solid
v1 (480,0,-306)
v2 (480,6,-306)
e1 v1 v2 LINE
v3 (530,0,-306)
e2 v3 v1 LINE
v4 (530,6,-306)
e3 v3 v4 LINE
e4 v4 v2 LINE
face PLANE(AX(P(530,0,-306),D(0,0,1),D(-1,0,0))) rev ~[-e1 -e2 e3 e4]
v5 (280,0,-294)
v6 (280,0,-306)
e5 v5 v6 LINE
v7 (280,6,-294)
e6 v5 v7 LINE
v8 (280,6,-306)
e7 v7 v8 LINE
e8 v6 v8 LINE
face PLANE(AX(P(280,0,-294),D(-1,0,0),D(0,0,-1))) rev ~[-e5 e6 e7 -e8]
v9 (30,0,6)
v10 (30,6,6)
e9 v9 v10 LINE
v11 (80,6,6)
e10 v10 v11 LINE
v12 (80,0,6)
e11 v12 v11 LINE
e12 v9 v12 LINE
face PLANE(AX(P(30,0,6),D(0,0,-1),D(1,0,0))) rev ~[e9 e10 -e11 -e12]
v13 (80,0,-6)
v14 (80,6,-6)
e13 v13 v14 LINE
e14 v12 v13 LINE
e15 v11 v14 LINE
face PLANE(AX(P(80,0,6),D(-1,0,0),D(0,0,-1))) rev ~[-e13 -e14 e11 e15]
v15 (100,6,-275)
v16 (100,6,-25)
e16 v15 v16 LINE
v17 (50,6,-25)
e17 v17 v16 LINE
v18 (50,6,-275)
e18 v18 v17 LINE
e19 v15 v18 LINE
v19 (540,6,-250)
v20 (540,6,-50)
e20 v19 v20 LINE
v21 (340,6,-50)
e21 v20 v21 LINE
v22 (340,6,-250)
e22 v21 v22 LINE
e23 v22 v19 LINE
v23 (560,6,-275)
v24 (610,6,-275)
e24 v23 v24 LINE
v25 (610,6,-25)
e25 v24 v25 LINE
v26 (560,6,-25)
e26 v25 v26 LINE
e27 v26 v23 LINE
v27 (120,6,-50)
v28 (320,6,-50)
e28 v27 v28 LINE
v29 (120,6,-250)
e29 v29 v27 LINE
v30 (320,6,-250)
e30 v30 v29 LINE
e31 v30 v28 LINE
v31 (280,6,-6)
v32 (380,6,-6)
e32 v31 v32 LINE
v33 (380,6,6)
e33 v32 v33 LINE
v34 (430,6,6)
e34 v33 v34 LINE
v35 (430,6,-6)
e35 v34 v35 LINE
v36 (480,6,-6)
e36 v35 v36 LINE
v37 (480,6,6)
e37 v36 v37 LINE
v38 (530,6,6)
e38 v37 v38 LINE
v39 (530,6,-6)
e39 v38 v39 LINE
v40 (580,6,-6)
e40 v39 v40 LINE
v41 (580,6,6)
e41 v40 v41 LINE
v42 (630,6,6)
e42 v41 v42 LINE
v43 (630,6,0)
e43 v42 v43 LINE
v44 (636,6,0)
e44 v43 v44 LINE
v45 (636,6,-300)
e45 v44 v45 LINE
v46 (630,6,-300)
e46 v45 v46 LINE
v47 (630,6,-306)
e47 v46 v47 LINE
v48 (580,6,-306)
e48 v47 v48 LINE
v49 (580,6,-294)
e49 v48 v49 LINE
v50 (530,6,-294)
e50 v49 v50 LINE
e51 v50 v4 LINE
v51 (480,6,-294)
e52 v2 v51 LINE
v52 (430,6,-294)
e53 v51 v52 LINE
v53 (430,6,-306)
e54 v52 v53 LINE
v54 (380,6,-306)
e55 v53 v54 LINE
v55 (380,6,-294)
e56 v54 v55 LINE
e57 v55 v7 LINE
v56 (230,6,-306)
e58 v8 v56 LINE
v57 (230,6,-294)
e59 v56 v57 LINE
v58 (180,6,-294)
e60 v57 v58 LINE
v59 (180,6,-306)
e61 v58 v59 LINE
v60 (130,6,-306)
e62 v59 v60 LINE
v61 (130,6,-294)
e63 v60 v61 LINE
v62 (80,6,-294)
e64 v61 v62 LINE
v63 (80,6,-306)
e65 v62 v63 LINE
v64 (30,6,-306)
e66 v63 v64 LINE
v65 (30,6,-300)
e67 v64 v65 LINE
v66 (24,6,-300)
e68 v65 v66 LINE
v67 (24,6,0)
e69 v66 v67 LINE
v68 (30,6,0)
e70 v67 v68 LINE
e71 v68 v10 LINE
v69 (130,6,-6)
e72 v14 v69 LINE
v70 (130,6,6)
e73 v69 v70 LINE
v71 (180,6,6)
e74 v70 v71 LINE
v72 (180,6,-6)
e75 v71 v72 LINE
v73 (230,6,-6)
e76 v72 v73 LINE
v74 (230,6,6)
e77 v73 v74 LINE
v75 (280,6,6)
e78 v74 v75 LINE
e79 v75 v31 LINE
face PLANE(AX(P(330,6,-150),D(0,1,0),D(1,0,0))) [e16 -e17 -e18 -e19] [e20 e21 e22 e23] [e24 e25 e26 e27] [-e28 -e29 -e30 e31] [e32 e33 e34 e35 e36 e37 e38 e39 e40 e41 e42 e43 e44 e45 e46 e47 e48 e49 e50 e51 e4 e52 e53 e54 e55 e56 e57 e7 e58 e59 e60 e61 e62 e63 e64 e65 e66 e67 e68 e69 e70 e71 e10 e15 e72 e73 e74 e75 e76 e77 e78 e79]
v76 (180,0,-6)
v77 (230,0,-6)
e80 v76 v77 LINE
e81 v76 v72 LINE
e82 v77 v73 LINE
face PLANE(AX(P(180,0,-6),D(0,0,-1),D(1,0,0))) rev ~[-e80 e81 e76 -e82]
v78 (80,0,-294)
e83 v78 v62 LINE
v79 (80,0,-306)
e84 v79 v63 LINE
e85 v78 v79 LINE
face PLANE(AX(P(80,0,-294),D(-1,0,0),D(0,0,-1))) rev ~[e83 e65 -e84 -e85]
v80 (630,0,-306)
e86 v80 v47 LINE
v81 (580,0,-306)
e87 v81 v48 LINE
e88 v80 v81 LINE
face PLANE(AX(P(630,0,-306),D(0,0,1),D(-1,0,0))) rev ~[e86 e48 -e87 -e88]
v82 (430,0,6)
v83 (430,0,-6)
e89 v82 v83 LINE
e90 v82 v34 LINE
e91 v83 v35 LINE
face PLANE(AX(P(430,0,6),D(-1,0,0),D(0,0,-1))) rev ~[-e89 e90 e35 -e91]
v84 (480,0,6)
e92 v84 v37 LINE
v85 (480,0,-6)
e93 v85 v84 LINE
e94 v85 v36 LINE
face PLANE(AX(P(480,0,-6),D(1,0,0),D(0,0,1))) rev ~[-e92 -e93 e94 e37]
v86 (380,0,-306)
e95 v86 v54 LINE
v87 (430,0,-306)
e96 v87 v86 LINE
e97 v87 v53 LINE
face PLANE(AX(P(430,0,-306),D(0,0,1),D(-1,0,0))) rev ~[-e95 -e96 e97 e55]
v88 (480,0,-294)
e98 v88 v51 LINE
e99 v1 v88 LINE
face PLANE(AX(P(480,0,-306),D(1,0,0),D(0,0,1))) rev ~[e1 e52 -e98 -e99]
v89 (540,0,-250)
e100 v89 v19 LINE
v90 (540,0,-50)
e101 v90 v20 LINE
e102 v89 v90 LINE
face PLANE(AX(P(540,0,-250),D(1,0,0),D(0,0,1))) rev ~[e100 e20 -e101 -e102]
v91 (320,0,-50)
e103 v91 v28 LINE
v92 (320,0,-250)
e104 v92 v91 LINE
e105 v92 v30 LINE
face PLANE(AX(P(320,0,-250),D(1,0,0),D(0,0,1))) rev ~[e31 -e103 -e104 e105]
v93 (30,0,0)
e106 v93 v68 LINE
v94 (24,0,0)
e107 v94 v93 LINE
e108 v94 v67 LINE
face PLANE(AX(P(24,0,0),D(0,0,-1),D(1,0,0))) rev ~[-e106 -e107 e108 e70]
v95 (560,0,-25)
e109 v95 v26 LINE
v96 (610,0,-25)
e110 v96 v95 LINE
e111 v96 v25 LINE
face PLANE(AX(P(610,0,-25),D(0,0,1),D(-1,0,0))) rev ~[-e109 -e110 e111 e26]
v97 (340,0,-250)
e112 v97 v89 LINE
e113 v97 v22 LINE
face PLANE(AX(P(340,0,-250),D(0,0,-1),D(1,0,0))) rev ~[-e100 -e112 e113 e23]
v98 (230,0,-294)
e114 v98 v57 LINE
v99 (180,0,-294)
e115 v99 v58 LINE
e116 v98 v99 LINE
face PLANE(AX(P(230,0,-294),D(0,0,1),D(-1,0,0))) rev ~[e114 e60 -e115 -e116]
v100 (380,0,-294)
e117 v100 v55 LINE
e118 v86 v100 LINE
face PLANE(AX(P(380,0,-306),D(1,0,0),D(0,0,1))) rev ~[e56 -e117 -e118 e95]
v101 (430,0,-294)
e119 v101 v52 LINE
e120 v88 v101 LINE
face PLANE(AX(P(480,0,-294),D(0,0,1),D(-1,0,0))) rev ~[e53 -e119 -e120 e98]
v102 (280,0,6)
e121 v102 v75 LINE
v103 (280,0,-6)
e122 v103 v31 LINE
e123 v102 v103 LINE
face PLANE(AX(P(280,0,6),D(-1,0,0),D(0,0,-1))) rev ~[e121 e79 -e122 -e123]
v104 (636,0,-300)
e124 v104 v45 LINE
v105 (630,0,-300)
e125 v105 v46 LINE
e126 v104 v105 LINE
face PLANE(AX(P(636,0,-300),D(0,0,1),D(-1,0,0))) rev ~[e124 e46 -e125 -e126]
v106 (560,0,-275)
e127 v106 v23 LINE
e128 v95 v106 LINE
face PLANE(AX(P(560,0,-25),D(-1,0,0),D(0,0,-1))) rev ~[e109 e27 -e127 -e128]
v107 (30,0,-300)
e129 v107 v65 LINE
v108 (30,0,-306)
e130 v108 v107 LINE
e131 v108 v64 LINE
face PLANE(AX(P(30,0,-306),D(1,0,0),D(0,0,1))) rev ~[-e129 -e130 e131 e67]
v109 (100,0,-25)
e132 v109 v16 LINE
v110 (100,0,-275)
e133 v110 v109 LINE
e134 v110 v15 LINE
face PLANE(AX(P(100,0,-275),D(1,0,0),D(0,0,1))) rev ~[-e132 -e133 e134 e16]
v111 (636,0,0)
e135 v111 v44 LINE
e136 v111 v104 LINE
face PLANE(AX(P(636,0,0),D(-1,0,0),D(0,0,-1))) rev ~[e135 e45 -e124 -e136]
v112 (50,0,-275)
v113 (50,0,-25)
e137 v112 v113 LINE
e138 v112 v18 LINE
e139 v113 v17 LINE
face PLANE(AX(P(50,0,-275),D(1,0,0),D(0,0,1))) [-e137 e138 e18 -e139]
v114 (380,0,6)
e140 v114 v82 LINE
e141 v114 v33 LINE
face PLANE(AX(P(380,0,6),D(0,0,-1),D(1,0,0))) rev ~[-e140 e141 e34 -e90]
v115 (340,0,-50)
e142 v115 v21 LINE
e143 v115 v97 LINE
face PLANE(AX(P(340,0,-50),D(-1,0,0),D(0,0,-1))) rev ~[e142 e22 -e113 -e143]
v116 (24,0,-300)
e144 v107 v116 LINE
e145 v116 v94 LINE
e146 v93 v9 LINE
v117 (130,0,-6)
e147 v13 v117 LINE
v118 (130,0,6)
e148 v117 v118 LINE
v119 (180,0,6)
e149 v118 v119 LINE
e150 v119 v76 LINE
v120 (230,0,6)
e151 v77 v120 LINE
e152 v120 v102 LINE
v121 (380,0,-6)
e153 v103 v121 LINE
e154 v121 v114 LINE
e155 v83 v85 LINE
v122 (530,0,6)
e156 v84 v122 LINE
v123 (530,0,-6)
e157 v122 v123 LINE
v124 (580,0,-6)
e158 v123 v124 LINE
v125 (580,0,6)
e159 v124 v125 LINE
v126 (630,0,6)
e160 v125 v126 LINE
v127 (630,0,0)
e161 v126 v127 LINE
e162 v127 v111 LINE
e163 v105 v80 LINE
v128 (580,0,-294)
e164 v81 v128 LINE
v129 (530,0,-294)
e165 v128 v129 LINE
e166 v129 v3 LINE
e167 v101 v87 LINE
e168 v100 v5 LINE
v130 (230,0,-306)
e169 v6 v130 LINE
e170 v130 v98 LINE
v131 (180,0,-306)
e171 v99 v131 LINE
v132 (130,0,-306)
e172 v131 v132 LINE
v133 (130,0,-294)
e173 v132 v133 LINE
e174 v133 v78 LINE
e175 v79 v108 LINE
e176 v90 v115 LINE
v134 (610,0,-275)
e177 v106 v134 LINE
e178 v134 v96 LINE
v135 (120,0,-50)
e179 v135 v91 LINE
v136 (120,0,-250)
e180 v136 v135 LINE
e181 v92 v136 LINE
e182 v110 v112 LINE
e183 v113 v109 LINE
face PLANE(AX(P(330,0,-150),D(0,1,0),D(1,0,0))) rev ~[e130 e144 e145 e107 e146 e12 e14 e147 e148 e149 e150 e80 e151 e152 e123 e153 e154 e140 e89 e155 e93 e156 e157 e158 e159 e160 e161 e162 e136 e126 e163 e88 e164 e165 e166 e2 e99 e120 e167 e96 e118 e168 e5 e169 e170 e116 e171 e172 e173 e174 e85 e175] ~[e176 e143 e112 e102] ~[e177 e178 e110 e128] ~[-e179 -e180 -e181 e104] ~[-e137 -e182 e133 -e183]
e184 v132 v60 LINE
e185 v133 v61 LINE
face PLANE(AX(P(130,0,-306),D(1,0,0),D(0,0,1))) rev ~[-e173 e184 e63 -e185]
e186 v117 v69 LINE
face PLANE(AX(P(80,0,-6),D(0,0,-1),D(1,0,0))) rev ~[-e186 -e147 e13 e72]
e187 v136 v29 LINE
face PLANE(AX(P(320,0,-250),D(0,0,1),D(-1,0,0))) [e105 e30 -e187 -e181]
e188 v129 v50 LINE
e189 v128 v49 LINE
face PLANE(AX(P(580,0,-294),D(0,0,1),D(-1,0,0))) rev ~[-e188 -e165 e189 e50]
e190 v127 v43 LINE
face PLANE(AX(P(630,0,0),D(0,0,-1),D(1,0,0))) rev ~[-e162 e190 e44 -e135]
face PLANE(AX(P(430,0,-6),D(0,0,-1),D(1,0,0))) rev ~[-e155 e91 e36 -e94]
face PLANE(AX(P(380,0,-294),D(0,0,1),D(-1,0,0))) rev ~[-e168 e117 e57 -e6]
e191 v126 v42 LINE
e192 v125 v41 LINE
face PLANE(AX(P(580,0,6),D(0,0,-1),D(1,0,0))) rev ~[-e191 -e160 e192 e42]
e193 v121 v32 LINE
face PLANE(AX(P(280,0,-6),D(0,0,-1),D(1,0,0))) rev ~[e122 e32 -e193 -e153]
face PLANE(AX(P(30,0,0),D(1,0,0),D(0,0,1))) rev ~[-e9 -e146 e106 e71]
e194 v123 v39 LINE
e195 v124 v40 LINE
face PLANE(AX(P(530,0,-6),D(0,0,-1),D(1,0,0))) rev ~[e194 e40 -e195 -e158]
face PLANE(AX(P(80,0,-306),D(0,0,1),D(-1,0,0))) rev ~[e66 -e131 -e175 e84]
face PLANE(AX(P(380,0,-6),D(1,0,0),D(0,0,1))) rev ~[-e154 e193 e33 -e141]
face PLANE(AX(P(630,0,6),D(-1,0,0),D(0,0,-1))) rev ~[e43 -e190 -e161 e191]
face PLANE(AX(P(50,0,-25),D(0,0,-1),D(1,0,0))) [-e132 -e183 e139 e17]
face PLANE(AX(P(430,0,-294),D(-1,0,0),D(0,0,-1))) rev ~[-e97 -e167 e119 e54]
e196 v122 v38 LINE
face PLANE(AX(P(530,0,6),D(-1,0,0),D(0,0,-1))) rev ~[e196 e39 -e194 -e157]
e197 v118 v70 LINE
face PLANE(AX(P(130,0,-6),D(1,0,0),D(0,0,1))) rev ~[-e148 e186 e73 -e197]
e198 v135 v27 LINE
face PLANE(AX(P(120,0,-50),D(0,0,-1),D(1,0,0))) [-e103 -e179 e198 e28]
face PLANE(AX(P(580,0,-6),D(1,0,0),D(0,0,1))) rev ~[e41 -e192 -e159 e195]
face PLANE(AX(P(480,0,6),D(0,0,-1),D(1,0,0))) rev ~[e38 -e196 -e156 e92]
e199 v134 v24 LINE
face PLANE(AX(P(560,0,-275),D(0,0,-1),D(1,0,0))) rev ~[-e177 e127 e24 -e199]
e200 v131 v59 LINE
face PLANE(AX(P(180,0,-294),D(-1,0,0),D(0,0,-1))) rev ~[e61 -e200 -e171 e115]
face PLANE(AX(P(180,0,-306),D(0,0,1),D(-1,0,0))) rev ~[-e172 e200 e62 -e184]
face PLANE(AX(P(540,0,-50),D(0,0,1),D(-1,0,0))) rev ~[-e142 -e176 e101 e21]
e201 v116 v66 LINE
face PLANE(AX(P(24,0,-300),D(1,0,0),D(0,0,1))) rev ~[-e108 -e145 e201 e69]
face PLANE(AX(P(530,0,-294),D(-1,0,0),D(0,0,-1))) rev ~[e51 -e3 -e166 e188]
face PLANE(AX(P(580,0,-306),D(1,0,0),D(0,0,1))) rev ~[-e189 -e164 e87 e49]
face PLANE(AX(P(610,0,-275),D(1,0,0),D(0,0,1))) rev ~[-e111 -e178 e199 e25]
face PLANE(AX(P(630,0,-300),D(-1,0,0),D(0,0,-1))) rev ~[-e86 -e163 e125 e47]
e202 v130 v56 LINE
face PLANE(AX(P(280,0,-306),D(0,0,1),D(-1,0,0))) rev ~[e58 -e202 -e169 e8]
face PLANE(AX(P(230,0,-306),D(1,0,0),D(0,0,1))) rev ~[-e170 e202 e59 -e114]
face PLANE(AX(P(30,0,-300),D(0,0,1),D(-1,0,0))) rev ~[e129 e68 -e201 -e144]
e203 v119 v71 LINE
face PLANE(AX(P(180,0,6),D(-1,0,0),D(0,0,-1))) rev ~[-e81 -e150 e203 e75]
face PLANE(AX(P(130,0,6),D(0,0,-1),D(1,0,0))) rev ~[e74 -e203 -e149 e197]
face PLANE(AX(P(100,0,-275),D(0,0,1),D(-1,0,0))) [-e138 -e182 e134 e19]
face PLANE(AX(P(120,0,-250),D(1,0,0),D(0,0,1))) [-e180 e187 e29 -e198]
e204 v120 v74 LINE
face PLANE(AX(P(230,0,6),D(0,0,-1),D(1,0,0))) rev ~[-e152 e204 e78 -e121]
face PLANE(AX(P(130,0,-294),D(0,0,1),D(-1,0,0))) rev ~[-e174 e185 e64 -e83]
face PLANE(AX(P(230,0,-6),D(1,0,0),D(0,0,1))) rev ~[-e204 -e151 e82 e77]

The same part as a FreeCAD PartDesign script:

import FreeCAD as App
import Part
import Sketcher
Q = App.Units.Quantity


def add_polygon(sketch, points):
    """Adds a closed chain of lines whose ends are joined by coincident constraints."""
    first, n = sketch.GeometryCount, len(points)
    for a, b in zip(points, points[1:] + points[:1]):
        sketch.addGeometry(Part.LineSegment(App.Vector(*a, 0), App.Vector(*b, 0)), False)
    for i in range(n):
        sketch.addConstraint(Sketcher.Constraint("Coincident", first + i, 2, first + (i + 1) % n, 1))

doc = App.newDocument("Part")
params = doc.addObject("Spreadsheet::Sheet", "Params")
for row, (alias, value) in enumerate([
    ("sketch1_width", "6 mm"),
    ("sketch1_width2", "50 mm"),
    ("sketch1_width3", "100 mm"),
    ("sketch1_width4", "200 mm"),
    ("sketch1_height", "300 mm"),
    ("pad1_length", "6 mm"),
], start=1):
    params.set(f"A{row}", alias)
    params.set(f"B{row}", "=" + value)
    params.setAlias(f"B{row}", alias)

body = doc.addObject("PartDesign::Body", "Body")

# Sketch on XZ plane
sketch1 = body.newObject("Sketcher::SketchObject", "Sketch")
sketch1.AttachmentSupport = (doc.getObject("XZ_Plane"), [""])
sketch1.MapMode = "FlatFace"
add_polygon(sketch1, [(30, -300), (24, -300), (24, 0), (30, 0), (30, 6), (80, 6), (80, -6), (130, -6), (130, 6), (180, 6), (180, -6), (230, -6), (230, 6), (280, 6), (280, -6), (380, -6), (380, 6), (430, 6), (430, -6), (480, -6), (480, 6), (530, 6), (530, -6), (580, -6), (580, 6), (630, 6), (630, 0), (636, 0), (636, -300), (630, -300), (630, -306), (580, -306), (580, -294), (530, -294), (530, -306), (480, -306), (480, -294), (430, -294), (430, -306), (380, -306), (380, -294), (280, -294), (280, -306), (230, -306), (230, -294), (180, -294), (180, -306), (130, -306), (130, -294), (80, -294), (80, -306), (30, -306)])  # lines 0-51
add_polygon(sketch1, [(100, -275), (100, -25), (50, -25), (50, -275)])  # lines 52-55
add_polygon(sketch1, [(320, -250), (320, -50), (120, -50), (120, -250)])  # lines 56-59
add_polygon(sketch1, [(340, -50), (340, -250), (540, -250), (540, -50)])  # lines 60-63
add_polygon(sketch1, [(560, -25), (560, -275), (610, -275), (610, -25)])  # lines 64-67
sketch1.addConstraint([
    Sketcher.Constraint("Horizontal", 0),
    Sketcher.Constraint("Vertical", 1),
    Sketcher.Constraint("Horizontal", 2),
    Sketcher.Constraint("Vertical", 3),
    Sketcher.Constraint("Horizontal", 4),
    Sketcher.Constraint("Vertical", 5),
    Sketcher.Constraint("Horizontal", 6),
    Sketcher.Constraint("Vertical", 7),
    Sketcher.Constraint("Horizontal", 8),
    Sketcher.Constraint("Vertical", 9),
    Sketcher.Constraint("Horizontal", 10),
    Sketcher.Constraint("Vertical", 11),
    Sketcher.Constraint("Horizontal", 12),
    Sketcher.Constraint("Vertical", 13),
    Sketcher.Constraint("Horizontal", 14),
    Sketcher.Constraint("Vertical", 15),
    Sketcher.Constraint("Horizontal", 16),
    Sketcher.Constraint("Vertical", 17),
    Sketcher.Constraint("Horizontal", 18),
    Sketcher.Constraint("Vertical", 19),
    Sketcher.Constraint("Horizontal", 20),
    Sketcher.Constraint("Vertical", 21),
    Sketcher.Constraint("Horizontal", 22),
    Sketcher.Constraint("Vertical", 23),
    Sketcher.Constraint("Horizontal", 24),
    Sketcher.Constraint("Vertical", 25),
    Sketcher.Constraint("Horizontal", 26),
    Sketcher.Constraint("Vertical", 27),
    Sketcher.Constraint("Horizontal", 28),
    Sketcher.Constraint("Vertical", 29),
    Sketcher.Constraint("Horizontal", 30),
    Sketcher.Constraint("Vertical", 31),
    Sketcher.Constraint("Horizontal", 32),
    Sketcher.Constraint("Vertical", 33),
    Sketcher.Constraint("Horizontal", 34),
    Sketcher.Constraint("Vertical", 35),
    Sketcher.Constraint("Horizontal", 36),
    Sketcher.Constraint("Vertical", 37),
    Sketcher.Constraint("Horizontal", 38),
    Sketcher.Constraint("Vertical", 39),
    Sketcher.Constraint("Horizontal", 40),
    Sketcher.Constraint("Vertical", 41),
    Sketcher.Constraint("Horizontal", 42),
    Sketcher.Constraint("Vertical", 43),
    Sketcher.Constraint("Horizontal", 44),
    Sketcher.Constraint("Vertical", 45),
    Sketcher.Constraint("Horizontal", 46),
    Sketcher.Constraint("Vertical", 47),
    Sketcher.Constraint("Horizontal", 48),
    Sketcher.Constraint("Vertical", 49),
    Sketcher.Constraint("Horizontal", 50),
    Sketcher.Constraint("Vertical", 51),
    Sketcher.Constraint("Vertical", 52),
    Sketcher.Constraint("Horizontal", 53),
    Sketcher.Constraint("Vertical", 54),
    Sketcher.Constraint("Horizontal", 55),
    Sketcher.Constraint("Vertical", 56),
    Sketcher.Constraint("Horizontal", 57),
    Sketcher.Constraint("Vertical", 58),
    Sketcher.Constraint("Horizontal", 59),
    Sketcher.Constraint("Vertical", 60),
    Sketcher.Constraint("Horizontal", 61),
    Sketcher.Constraint("Vertical", 62),
    Sketcher.Constraint("Horizontal", 63),
    Sketcher.Constraint("Vertical", 64),
    Sketcher.Constraint("Horizontal", 65),
    Sketcher.Constraint("Vertical", 66),
    Sketcher.Constraint("Horizontal", 67),
    Sketcher.Constraint("PointOnObject", 1, 2, -1),
    Sketcher.Constraint("PointOnObject", 25, 2, -1),
    Sketcher.Constraint("Horizontal", 4, 2, 7, 2),
    Sketcher.Constraint("Horizontal", 6, 2, 9, 2),
    Sketcher.Constraint("Horizontal", 8, 2, 11, 2),
    Sketcher.Constraint("Horizontal", 10, 2, 13, 2),
    Sketcher.Constraint("Horizontal", 12, 2, 15, 2),
    Sketcher.Constraint("Horizontal", 14, 2, 17, 2),
    Sketcher.Constraint("Horizontal", 16, 2, 19, 2),
    Sketcher.Constraint("Horizontal", 18, 2, 21, 2),
    Sketcher.Constraint("Horizontal", 20, 2, 23, 2),
    Sketcher.Constraint("Horizontal", 0, 2, 27, 2),
    Sketcher.Constraint("Horizontal", 30, 2, 33, 2),
    Sketcher.Constraint("Horizontal", 32, 2, 35, 2),
    Sketcher.Constraint("Horizontal", 34, 2, 37, 2),
    Sketcher.Constraint("Horizontal", 36, 2, 39, 2),
    Sketcher.Constraint("Horizontal", 38, 2, 41, 2),
    Sketcher.Constraint("Horizontal", 40, 2, 43, 2),
    Sketcher.Constraint("Horizontal", 42, 2, 45, 2),
    Sketcher.Constraint("Horizontal", 44, 2, 47, 2),
    Sketcher.Constraint("Horizontal", 46, 2, 49, 2),
    Sketcher.Constraint("Horizontal", 59, 2, 60, 2),
    Sketcher.Constraint("Horizontal", 57, 2, 62, 2),
    Sketcher.Constraint("Horizontal", 55, 2, 64, 2),
    Sketcher.Constraint("Horizontal", 53, 2, 66, 2),
    Sketcher.Constraint("Vertical", 25, 2, 28, 2),
    Sketcher.Constraint("Vertical", 23, 2, 30, 2),
    Sketcher.Constraint("Vertical", 21, 2, 32, 2),
    Sketcher.Constraint("Vertical", 19, 2, 34, 2),
    Sketcher.Constraint("Vertical", 17, 2, 36, 2),
    Sketcher.Constraint("Vertical", 15, 2, 38, 2),
    Sketcher.Constraint("Vertical", 13, 2, 40, 2),
    Sketcher.Constraint("Vertical", 11, 2, 42, 2),
    Sketcher.Constraint("Vertical", 9, 2, 44, 2),
    Sketcher.Constraint("Vertical", 7, 2, 46, 2),
    Sketcher.Constraint("Vertical", 5, 2, 48, 2),
    Sketcher.Constraint("Vertical", 3, 2, 50, 2),
    Sketcher.Constraint("Equal", 4, 6),
    Sketcher.Constraint("Equal", 6, 8),
    Sketcher.Constraint("Equal", 8, 10),
    Sketcher.Constraint("Equal", 10, 12),
    Sketcher.Constraint("Equal", 12, 16),
    Sketcher.Constraint("Equal", 16, 18),
    Sketcher.Constraint("Equal", 18, 20),
    Sketcher.Constraint("Equal", 20, 22),
    Sketcher.Constraint("Equal", 22, 24),
    Sketcher.Constraint("Equal", 2, 26),
    Sketcher.Constraint("Equal", 50, 53),
    Sketcher.Constraint("Equal", 59, 61),
    Sketcher.Constraint("Equal", 55, 65),
    Sketcher.Constraint("Equal", 28, 3),
    Sketcher.Constraint("Equal", 25, 29),
    Sketcher.Constraint("Equal", 23, 31),
    Sketcher.Constraint("Equal", 63, 56),
    Sketcher.Constraint("DistanceX", 0, 2, 0, 1, Q("6 mm")),
    Sketcher.Constraint("DistanceX", 4, 1, 4, 2, Q("50 mm")),
    Sketcher.Constraint("DistanceX", 14, 1, 14, 2, Q("100 mm")),
    Sketcher.Constraint("DistanceX", 57, 2, 57, 1, Q("200 mm")),
    Sketcher.Constraint("DistanceY", 1, 1, 1, 2, Q("300 mm")),
    Sketcher.Constraint("DistanceY", 5, 2, 5, 1, Q("12 mm")),
    Sketcher.Constraint("DistanceY", 52, 1, 52, 2, Q("250 mm")),
    Sketcher.Constraint("DistanceX", -1, 1, 0, 2, Q("24 mm")),
    Sketcher.Constraint("DistanceX", -1, 1, 52, 2, Q("100 mm")),
    Sketcher.Constraint("DistanceY", 52, 2, -1, 1, Q("25 mm")),
    Sketcher.Constraint("DistanceX", -1, 1, 56, 2, Q("320 mm")),
    Sketcher.Constraint("DistanceY", 56, 2, -1, 1, Q("50 mm")),
    Sketcher.Constraint("DistanceX", -1, 1, 60, 2, Q("340 mm")),
    Sketcher.Constraint("DistanceX", -1, 1, 64, 2, Q("560 mm")),
])
sketch1.setExpression("Constraints[190]", "Params.sketch1_width")
sketch1.setExpression("Constraints[191]", "Params.sketch1_width2")
sketch1.setExpression("Constraints[192]", "Params.sketch1_width3")
sketch1.setExpression("Constraints[193]", "Params.sketch1_width4")
sketch1.setExpression("Constraints[194]", "Params.sketch1_height")
pad1 = body.newObject("PartDesign::Pad", "Pad")
pad1.Profile = sketch1
pad1.setExpression("Length", "Params.pad1_length")
pad1.Reversed = True

doc.recompute()
